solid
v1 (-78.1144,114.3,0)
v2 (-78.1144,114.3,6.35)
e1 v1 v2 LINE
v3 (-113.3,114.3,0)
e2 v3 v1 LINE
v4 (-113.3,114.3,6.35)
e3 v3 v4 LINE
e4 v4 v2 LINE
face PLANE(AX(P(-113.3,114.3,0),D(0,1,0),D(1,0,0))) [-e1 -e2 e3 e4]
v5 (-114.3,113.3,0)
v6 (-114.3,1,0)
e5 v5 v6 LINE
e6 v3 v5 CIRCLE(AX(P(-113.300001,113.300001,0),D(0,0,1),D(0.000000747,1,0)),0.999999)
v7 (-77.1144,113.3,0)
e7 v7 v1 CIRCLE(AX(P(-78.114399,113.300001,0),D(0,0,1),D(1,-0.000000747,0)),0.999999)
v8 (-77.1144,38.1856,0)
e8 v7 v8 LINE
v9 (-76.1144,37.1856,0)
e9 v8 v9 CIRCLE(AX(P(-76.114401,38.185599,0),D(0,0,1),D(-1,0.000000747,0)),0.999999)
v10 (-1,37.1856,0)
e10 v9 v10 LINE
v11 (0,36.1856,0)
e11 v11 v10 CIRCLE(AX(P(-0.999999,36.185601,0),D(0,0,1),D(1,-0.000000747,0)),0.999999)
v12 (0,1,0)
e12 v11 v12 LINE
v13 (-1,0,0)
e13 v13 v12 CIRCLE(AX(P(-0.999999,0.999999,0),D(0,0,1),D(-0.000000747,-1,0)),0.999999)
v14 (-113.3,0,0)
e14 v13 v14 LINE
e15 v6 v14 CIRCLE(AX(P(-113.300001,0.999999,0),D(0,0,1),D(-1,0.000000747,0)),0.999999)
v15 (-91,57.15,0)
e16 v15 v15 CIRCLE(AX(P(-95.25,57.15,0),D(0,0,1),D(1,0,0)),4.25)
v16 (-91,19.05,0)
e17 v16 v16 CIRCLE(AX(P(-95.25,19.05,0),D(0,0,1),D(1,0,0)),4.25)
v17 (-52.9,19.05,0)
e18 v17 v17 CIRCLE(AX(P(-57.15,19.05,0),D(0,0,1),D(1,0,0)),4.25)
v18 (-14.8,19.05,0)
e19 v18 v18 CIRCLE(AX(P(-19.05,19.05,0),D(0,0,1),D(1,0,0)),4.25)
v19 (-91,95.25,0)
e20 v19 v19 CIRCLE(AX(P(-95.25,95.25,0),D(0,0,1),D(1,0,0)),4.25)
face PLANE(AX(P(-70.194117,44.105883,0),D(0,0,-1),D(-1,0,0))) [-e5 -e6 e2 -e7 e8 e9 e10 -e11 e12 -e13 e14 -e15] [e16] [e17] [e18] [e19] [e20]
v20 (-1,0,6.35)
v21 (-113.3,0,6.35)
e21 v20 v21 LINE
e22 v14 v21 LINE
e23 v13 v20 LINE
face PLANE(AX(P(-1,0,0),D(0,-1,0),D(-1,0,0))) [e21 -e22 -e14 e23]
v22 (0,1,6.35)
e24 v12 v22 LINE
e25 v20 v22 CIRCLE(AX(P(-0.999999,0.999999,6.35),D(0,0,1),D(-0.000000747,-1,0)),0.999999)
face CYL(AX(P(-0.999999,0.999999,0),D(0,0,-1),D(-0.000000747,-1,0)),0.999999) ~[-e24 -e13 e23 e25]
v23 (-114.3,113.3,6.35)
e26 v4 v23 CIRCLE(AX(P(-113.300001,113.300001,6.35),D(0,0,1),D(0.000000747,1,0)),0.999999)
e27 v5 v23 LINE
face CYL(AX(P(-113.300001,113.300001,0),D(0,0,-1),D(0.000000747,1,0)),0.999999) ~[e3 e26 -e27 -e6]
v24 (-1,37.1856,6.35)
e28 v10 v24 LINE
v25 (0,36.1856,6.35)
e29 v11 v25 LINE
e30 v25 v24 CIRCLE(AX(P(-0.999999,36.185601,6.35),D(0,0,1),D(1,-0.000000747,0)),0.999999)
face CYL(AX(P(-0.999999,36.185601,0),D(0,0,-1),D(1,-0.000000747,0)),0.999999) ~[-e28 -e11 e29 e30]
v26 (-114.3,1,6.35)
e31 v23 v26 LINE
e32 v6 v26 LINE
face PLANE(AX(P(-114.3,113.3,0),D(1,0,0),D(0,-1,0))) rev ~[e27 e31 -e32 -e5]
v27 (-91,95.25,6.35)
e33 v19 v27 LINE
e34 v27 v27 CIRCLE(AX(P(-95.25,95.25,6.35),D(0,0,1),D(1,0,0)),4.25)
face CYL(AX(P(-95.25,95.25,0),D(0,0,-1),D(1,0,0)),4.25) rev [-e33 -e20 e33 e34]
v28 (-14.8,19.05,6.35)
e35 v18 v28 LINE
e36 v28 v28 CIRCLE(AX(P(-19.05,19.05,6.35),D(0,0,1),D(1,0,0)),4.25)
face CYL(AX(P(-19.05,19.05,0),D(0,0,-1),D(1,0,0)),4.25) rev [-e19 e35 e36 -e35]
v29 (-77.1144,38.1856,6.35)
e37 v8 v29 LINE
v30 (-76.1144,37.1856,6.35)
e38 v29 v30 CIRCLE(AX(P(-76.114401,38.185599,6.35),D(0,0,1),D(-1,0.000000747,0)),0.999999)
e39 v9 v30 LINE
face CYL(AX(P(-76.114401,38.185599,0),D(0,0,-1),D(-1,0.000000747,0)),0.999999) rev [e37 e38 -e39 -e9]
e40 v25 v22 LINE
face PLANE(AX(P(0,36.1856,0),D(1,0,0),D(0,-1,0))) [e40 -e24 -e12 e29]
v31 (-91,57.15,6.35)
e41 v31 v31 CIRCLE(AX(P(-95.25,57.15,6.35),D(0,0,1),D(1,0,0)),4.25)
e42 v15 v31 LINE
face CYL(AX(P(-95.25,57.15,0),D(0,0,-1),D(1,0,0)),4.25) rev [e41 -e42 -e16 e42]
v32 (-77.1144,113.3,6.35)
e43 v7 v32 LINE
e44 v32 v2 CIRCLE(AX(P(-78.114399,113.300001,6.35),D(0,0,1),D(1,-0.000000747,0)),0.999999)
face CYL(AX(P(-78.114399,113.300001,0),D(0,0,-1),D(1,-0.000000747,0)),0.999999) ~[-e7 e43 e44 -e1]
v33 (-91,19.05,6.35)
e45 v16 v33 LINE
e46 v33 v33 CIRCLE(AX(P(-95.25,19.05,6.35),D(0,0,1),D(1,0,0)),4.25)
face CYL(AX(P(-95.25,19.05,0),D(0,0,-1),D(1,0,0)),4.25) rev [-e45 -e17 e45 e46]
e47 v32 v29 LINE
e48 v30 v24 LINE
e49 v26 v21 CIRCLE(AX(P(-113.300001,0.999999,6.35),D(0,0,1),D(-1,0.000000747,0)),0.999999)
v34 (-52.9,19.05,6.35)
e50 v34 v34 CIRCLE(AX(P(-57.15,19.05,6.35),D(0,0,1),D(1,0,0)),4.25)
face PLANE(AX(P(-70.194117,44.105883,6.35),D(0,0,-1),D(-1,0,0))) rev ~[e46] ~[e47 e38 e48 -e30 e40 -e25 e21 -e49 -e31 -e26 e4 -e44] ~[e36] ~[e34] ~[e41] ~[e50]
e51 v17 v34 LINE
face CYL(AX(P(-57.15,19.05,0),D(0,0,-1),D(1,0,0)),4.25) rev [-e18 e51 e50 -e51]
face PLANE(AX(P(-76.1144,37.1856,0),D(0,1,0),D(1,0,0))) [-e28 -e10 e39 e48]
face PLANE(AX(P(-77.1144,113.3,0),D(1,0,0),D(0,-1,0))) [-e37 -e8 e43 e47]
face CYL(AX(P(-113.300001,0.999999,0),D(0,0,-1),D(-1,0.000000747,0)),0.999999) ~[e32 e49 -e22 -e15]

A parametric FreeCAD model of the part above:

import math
import FreeCAD as App
import Part
import Sketcher
from FreeCAD import Vector
Q = App.Units.Quantity

doc = App.newDocument("Part")
body = doc.addObject("PartDesign::Body", "Body")

# Sketch on XY plane
sketch1 = body.newObject("Sketcher::SketchObject", "Sketch")
sketch1.AttachmentSupport = (doc.getObject("XY_Plane"), [""])
sketch1.MapMode = "FlatFace"
sketch1.addGeometry([
    Part.LineSegment(Vector(-78.1, 114.3, 0), Vector(-113.3, 114.3, 0)),  # 0
    Part.ArcOfCircle(Part.Circle(Vector(-113.3, 113.3, 0), Vector(0, 0, 1), 1), math.radians(90), math.radians(180)),  # 1
    Part.LineSegment(Vector(-114.3, 113.3, 0), Vector(-114.3, 1, 0)),  # 2
    Part.ArcOfCircle(Part.Circle(Vector(-113.3, 1, 0), Vector(0, 0, 1), 1), math.radians(180), math.radians(270)),  # 3
    Part.LineSegment(Vector(-113.3, 0, 0), Vector(-1, 0, 0)),  # 4
    Part.ArcOfCircle(Part.Circle(Vector(-1, 1, 0), Vector(0, 0, 1), 1), math.radians(-90), math.radians(0)),  # 5
    Part.LineSegment(Vector(0, 1, 0), Vector(0, 36.2, 0)),  # 6
    Part.ArcOfCircle(Part.Circle(Vector(-1, 36.2, 0), Vector(0, 0, 1), 1), math.radians(0), math.radians(90)),  # 7
    Part.LineSegment(Vector(-1, 37.2, 0), Vector(-76.1, 37.2, 0)),  # 8
    Part.ArcOfCircle(Part.Circle(Vector(-76.1, 38.2, 0), Vector(0, 0, 1), 1), math.radians(180), math.radians(270)),  # 9
    Part.LineSegment(Vector(-77.1, 38.2, 0), Vector(-77.1, 113.3, 0)),  # 10
    Part.ArcOfCircle(Part.Circle(Vector(-78.1, 113.3, 0), Vector(0, 0, 1), 1), math.radians(0), math.radians(90)),  # 11
    Part.Circle(Vector(-19.1, 19.1, 0), Vector(0, 0, 1), 4.2),  # 12
    Part.Circle(Vector(-57.1, 19.1, 0), Vector(0, 0, 1), 4.2),  # 13
    Part.Circle(Vector(-95.2, 19.1, 0), Vector(0, 0, 1), 4.2),  # 14
    Part.Circle(Vector(-95.2, 57.1, 0), Vector(0, 0, 1), 4.2),  # 15
    Part.Circle(Vector(-95.2, 95.2, 0), Vector(0, 0, 1), 4.2),  # 16
], False)
sketch1.addConstraint([
    Sketcher.Constraint("Tangent", 0, 2, 1, 1),
    Sketcher.Constraint("Tangent", 1, 2, 2, 1),
    Sketcher.Constraint("Tangent", 2, 2, 3, 1),
    Sketcher.Constraint("Tangent", 3, 2, 4, 1),
    Sketcher.Constraint("Tangent", 4, 2, 5, 1),
    Sketcher.Constraint("Tangent", 5, 2, 6, 1),
    Sketcher.Constraint("Tangent", 6, 2, 7, 1),
    Sketcher.Constraint("Tangent", 7, 2, 8, 1),
    Sketcher.Constraint("Tangent", 8, 2, 9, 2),
    Sketcher.Constraint("Tangent", 9, 1, 10, 1),
    Sketcher.Constraint("Tangent", 10, 2, 11, 1),
    Sketcher.Constraint("Tangent", 11, 2, 0, 1),
    Sketcher.Constraint("Horizontal", 0),
    Sketcher.Constraint("Vertical", 2),
    Sketcher.Constraint("Horizontal", 4),
    Sketcher.Constraint("Vertical", 6),
    Sketcher.Constraint("Horizontal", 8),
    Sketcher.Constraint("Vertical", 10),
    Sketcher.Constraint("Equal", 1, 3),
    Sketcher.Constraint("Equal", 3, 5),
    Sketcher.Constraint("Equal", 5, 7),
    Sketcher.Constraint("Equal", 7, 9),
    Sketcher.Constraint("Equal", 9, 11),
    Sketcher.Constraint("Equal", 12, 13),
    Sketcher.Constraint("Equal", 13, 14),
    Sketcher.Constraint("Equal", 14, 15),
    Sketcher.Constraint("Equal", 15, 16),
    Sketcher.Constraint("PointOnObject", 3, 2, -1),
    Sketcher.Constraint("PointOnObject", 5, 2, -2),
    Sketcher.Constraint("Horizontal", 12, 3, 13, 3),
    Sketcher.Constraint("Horizontal", 13, 3, 14, 3),
    Sketcher.Constraint("Vertical", 14, 3, 15, 3),
    Sketcher.Constraint("Vertical", 15, 3, 16, 3),
    Sketcher.Constraint("Equal", 4, 2),
    Sketcher.Constraint("Equal", 0, 6),
    Sketcher.Constraint("Radius", 1, Q("0.999999 mm")),
    Sketcher.Constraint("Diameter", 12, Q("8.5 mm")),
    Sketcher.Constraint("DistanceX", 4, 1, 4, 2, Q("112.3 mm")),
    Sketcher.Constraint("DistanceX", 13, 3, 12, 3, Q("38.1 mm")),
    Sketcher.Constraint("DistanceX", 14, 3, 13, 3, Q("38.1 mm")),
    Sketcher.Constraint("DistanceY", 14, 3, 15, 3, Q("38.1 mm")),
    Sketcher.Constraint("DistanceY", 15, 3, 16, 3, Q("38.1 mm")),
    Sketcher.Constraint("DistanceX", 12, 3, -1, 1, Q("19.05 mm")),
    Sketcher.Constraint("DistanceY", -1, 1, 12, 3, Q("19.05 mm")),
    Sketcher.Constraint("DistanceX", 0, 2, 0, 1, Q("35.1856 mm")),
])
pad1 = body.newObject("PartDesign::Pad", "Pad")
pad1.Profile = sketch1
pad1.Length = 6.35

doc.recompute()
